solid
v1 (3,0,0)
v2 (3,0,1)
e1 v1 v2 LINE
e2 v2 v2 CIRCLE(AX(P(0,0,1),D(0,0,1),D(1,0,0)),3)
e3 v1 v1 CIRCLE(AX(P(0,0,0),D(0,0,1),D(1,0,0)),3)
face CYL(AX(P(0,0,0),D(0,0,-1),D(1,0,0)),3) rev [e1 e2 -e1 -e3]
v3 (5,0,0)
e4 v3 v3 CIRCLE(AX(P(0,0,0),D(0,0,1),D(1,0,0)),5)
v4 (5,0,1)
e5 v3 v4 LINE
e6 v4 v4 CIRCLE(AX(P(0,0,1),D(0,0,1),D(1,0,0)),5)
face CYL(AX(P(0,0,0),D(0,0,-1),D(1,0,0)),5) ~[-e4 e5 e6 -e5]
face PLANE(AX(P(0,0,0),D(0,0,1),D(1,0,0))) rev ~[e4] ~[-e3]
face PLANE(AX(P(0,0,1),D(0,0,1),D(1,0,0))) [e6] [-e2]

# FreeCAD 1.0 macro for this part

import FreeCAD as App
import Part
import Sketcher

doc = App.newDocument("Part")
body = doc.addObject("PartDesign::Body", "Body")

# Sketch on XY plane
sketch1 = body.newObject("Sketcher::SketchObject", "Sketch")
sketch1.AttachmentSupport = (doc.getObject("XY_Plane"), [""])
sketch1.MapMode = "FlatFace"
sketch1.addGeometry([
    Part.Circle(App.Vector(0, 0, 0), App.Vector(0, 0, 1), 5),
    Part.Circle(App.Vector(0, 0, 0), App.Vector(0, 0, 1), 3),
], False)
sketch1.addConstraint([
    Sketcher.Constraint("Coincident", 0, 3, -1, 1),
    Sketcher.Constraint("Coincident", 1, 3, -1, 1),
    Sketcher.Constraint("Diameter", 0, 10.0),
    Sketcher.Constraint("Diameter", 1, 6.0),
])
pad1 = body.newObject("PartDesign::Pad", "Pad")
pad1.Profile = sketch1
pad1.Length = 1

doc.recompute()
